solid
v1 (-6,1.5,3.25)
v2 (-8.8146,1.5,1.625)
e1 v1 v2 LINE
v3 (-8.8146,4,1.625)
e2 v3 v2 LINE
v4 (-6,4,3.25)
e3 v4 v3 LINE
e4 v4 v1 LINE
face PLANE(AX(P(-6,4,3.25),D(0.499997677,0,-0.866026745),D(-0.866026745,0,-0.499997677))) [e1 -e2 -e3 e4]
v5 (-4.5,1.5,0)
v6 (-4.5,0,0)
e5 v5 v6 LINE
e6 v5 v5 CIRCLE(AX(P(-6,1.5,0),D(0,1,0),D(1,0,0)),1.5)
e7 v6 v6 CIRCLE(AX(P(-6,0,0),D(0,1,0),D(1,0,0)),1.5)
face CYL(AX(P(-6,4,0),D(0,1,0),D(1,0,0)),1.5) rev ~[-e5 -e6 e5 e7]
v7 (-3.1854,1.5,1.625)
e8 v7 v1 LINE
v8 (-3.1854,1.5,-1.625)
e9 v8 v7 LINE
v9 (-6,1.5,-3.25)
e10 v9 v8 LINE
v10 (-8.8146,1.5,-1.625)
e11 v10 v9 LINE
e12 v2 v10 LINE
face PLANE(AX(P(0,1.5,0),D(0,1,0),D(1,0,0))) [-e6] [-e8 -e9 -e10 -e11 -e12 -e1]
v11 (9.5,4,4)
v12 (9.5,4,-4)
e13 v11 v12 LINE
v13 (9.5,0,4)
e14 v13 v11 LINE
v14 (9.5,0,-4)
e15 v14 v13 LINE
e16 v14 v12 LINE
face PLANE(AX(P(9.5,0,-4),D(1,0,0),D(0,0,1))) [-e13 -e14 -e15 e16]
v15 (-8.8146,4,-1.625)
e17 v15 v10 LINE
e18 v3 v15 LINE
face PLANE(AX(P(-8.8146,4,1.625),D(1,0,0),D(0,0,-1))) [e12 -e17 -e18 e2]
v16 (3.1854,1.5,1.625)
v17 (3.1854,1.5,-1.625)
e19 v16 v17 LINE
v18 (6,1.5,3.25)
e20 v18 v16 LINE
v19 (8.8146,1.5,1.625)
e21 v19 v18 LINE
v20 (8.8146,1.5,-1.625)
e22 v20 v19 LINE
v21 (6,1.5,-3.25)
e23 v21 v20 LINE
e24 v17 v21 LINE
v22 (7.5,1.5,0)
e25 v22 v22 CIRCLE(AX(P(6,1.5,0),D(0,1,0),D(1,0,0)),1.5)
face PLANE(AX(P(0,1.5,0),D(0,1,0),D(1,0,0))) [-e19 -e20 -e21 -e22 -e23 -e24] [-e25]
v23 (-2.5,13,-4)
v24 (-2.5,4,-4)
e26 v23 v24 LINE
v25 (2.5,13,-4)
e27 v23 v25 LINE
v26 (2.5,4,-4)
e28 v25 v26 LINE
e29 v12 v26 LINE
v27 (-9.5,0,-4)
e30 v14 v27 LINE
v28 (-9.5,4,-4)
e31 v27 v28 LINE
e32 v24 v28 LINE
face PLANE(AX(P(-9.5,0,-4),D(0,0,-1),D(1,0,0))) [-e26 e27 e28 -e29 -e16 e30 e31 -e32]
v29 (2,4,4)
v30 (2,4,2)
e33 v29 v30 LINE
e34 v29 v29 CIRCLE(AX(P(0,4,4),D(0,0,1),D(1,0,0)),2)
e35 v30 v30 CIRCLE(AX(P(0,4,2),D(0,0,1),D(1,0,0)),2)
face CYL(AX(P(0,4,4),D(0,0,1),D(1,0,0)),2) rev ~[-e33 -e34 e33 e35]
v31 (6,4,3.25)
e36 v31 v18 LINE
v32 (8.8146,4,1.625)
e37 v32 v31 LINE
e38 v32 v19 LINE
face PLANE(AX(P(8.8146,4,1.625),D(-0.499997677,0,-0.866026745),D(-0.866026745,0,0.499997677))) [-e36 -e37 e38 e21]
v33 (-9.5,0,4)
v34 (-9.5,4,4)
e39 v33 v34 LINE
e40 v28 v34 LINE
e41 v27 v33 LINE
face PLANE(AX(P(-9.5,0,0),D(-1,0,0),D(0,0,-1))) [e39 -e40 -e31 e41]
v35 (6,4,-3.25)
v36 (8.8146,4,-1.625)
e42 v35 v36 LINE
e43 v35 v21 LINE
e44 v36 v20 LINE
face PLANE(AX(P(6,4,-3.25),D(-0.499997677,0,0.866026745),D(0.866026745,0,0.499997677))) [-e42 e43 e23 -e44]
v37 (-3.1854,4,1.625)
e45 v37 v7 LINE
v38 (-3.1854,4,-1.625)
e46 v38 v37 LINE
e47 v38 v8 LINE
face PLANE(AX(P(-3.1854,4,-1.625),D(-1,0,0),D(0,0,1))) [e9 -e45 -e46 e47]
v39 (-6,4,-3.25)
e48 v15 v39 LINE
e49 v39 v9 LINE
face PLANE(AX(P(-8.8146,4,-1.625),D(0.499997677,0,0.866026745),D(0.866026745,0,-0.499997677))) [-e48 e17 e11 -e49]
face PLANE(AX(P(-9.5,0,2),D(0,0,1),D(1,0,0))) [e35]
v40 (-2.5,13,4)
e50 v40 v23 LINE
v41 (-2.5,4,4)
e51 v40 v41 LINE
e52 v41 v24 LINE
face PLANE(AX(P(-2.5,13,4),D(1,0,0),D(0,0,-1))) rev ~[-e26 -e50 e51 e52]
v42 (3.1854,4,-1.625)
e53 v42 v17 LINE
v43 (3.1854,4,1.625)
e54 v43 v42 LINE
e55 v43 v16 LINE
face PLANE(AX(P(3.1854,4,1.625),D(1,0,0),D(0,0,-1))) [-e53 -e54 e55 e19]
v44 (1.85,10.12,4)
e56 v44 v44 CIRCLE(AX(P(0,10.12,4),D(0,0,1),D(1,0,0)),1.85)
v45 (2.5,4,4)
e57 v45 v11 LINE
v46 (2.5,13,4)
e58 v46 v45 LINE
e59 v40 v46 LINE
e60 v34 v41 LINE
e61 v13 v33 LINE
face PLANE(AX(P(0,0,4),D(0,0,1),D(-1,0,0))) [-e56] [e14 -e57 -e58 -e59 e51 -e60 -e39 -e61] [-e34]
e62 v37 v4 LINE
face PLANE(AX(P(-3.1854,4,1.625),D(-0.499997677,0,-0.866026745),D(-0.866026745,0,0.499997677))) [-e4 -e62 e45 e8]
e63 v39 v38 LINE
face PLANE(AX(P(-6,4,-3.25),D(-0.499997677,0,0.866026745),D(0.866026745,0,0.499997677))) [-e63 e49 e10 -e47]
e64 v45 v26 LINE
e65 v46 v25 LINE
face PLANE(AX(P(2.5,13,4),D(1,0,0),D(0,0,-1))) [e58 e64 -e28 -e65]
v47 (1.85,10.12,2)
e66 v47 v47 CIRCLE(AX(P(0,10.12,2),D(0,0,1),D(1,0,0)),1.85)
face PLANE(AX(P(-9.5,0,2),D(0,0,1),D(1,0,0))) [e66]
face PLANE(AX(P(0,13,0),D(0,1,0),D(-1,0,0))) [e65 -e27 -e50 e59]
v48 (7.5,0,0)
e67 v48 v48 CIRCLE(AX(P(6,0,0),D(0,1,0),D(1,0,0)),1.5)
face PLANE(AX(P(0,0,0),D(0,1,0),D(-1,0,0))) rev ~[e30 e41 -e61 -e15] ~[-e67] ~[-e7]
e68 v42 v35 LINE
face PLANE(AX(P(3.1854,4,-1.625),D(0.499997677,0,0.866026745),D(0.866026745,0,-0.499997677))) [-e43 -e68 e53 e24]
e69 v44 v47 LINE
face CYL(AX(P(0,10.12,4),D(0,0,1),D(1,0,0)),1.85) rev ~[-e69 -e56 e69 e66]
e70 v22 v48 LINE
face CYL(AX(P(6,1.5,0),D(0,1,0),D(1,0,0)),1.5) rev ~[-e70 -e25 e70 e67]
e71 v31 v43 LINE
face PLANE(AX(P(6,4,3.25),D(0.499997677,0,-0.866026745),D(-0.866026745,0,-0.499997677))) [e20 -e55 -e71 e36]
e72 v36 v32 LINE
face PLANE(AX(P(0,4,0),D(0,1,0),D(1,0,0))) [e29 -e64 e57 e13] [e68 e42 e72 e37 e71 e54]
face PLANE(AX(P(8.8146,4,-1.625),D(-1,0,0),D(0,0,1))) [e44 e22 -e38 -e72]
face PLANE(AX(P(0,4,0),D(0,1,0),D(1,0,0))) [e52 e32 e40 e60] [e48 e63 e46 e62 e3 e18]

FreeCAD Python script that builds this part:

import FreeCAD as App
import Part
import Sketcher

V = App.Vector
Q = App.Units.Quantity

doc = App.newDocument("Part")
params = doc.addObject("Spreadsheet::Sheet", "Params")
for row, (alias, value) in enumerate([
    ("sketch1_width", "19 mm"),
    ("sketch1_height", "8 mm"),
    ("pad1_length", "13 mm"),
    ("sketch2_diameter", "4 mm"),
    ("sketch2_diameter2", "3.7 mm"),
    ("pocket1_length", "2 mm"),
    ("sketch3_width", "7 mm"),
    ("sketch3_height", "8 mm"),
    ("pocket2_length", "9 mm"),
    ("sketch4_width", "7 mm"),
    ("sketch4_height", "8 mm"),
    ("pocket3_length", "9 mm"),
    ("sketch5_height", "3.25 mm"),
    ("pocket4_length", "2.5 mm"),
    ("sketch6_diameter", "3 mm"),
    ("sketch7_height", "3.25 mm"),
    ("pocket6_length", "2.5 mm"),
    ("sketch8_diameter", "3 mm"),
], start=1):
    params.set(f"A{row}", alias)
    params.set(f"B{row}", "=" + value)
    params.setAlias(f"B{row}", alias)

body = doc.addObject("PartDesign::Body", "Body")

sketch1 = body.newObject("Sketcher::SketchObject", "Sketch")
sketch1.AttachmentSupport = (doc.getObject("XZ_Plane"), [""])
sketch1.MapMode = "FlatFace"
sketch1.addGeometry([
    Part.LineSegment(V(-10, -4, 0), V(-10, 4, 0)),
    Part.LineSegment(V(-10, 4, 0), V(10, 4, 0)),
    Part.LineSegment(V(10, 4, 0), V(10, -4, 0)),
    Part.LineSegment(V(10, -4, 0), V(-10, -4, 0)),
], False)
sketch1.addConstraint([
    Sketcher.Constraint("Coincident", 0, 2, 1, 1),
    Sketcher.Constraint("Coincident", 1, 2, 2, 1),
    Sketcher.Constraint("Coincident", 2, 2, 3, 1),
    Sketcher.Constraint("Coincident", 3, 2, 0, 1),
    Sketcher.Constraint("Vertical", 0),
    Sketcher.Constraint("Horizontal", 1),
    Sketcher.Constraint("Vertical", 2),
    Sketcher.Constraint("Horizontal", 3),
    Sketcher.Constraint("Symmetric", 0, 2, 2, 2, -1, 1),
    Sketcher.Constraint("DistanceX", 1, 1, 1, 2, 19.0),
    Sketcher.Constraint("DistanceY", 0, 1, 0, 2, 8.0),
])
sketch1.setExpression("Constraints[9]", "Params.sketch1_width")
sketch1.setExpression("Constraints[10]", "Params.sketch1_height")
pad1 = body.newObject("PartDesign::Pad", "Pad")
pad1.Profile = sketch1
pad1.setExpression("Length", "Params.pad1_length")
pad1.Reversed = True

sketch2 = body.newObject("Sketcher::SketchObject", "Sketch001")
sketch2.AttachmentSupport = (doc.getObject("XY_Plane"), [""])
sketch2.MapMode = "FlatFace"
sketch2.AttachmentOffset = App.Placement(V(0, 0, 4), App.Rotation())
sketch2.addGeometry([
    Part.Circle(V(0, 10.1, 0), V(0, 0, 1), 1.9),
    Part.Circle(V(0, 4, 0), V(0, 0, 1), 2),
], False)
sketch2.addConstraint([
    Sketcher.Constraint("PointOnObject", 0, 3, -2),
    Sketcher.Constraint("PointOnObject", 1, 3, -2),
    Sketcher.Constraint("Diameter", 1, 4.0),
    Sketcher.Constraint("Diameter", 0, 3.7),
    Sketcher.Constraint("DistanceY", -1, 1, 1, 3, 4.0),
    Sketcher.Constraint("DistanceY", 1, 3, 0, 3, 6.12),
])
sketch2.setExpression("Constraints[2]", "Params.sketch2_diameter")
sketch2.setExpression("Constraints[3]", "Params.sketch2_diameter2")
pocket1 = body.newObject("PartDesign::Pocket", "Pocket")
pocket1.Profile = sketch2
pocket1.setExpression("Length", "Params.pocket1_length")

sketch3 = body.newObject("Sketcher::SketchObject", "Sketch002")
sketch3.AttachmentSupport = (doc.getObject("XZ_Plane"), [""])
sketch3.MapMode = "FlatFace"
sketch3.AttachmentOffset = App.Placement(V(0, 0, -13), App.Rotation())
sketch3.addGeometry([
    Part.LineSegment(V(2, -4, 0), V(2, 4, 0)),
    Part.LineSegment(V(2, 4, 0), V(10, 4, 0)),
    Part.LineSegment(V(10, 4, 0), V(10, -4, 0)),
    Part.LineSegment(V(10, -4, 0), V(2, -4, 0)),
], False)
sketch3.addConstraint([
    Sketcher.Constraint("Coincident", 0, 2, 1, 1),
    Sketcher.Constraint("Coincident", 1, 2, 2, 1),
    Sketcher.Constraint("Coincident", 2, 2, 3, 1),
    Sketcher.Constraint("Coincident", 3, 2, 0, 1),
    Sketcher.Constraint("Vertical", 0),
    Sketcher.Constraint("Horizontal", 1),
    Sketcher.Constraint("Vertical", 2),
    Sketcher.Constraint("Horizontal", 3),
    Sketcher.Constraint("DistanceX", 1, 1, 1, 2, 7.0),
    Sketcher.Constraint("DistanceY", 0, 1, 0, 2, 8.0),
    Sketcher.Constraint("DistanceY", -1, 1, 0, 2, 4.0),
    Sketcher.Constraint("DistanceX", -1, 1, 0, 2, 2.5),
])
sketch3.setExpression("Constraints[8]", "Params.sketch3_width")
sketch3.setExpression("Constraints[9]", "Params.sketch3_height")
pocket2 = body.newObject("PartDesign::Pocket", "Pocket001")
pocket2.Profile = sketch3
pocket2.setExpression("Length", "Params.pocket2_length")
pocket2.Reversed = True

sketch4 = body.newObject("Sketcher::SketchObject", "Sketch003")
sketch4.AttachmentSupport = (doc.getObject("XZ_Plane"), [""])
sketch4.MapMode = "FlatFace"
sketch4.AttachmentOffset = App.Placement(V(0, 0, -13), App.Rotation())
sketch4.addGeometry([
    Part.LineSegment(V(-10, -4, 0), V(-10, 4, 0)),
    Part.LineSegment(V(-10, 4, 0), V(-2, 4, 0)),
    Part.LineSegment(V(-2, 4, 0), V(-2, -4, 0)),
    Part.LineSegment(V(-2, -4, 0), V(-10, -4, 0)),
], False)
sketch4.addConstraint([
    Sketcher.Constraint("Coincident", 0, 2, 1, 1),
    Sketcher.Constraint("Coincident", 1, 2, 2, 1),
    Sketcher.Constraint("Coincident", 2, 2, 3, 1),
    Sketcher.Constraint("Coincident", 3, 2, 0, 1),
    Sketcher.Constraint("Vertical", 0),
    Sketcher.Constraint("Horizontal", 1),
    Sketcher.Constraint("Vertical", 2),
    Sketcher.Constraint("Horizontal", 3),
    Sketcher.Constraint("DistanceX", 1, 1, 1, 2, 7.0),
    Sketcher.Constraint("DistanceY", 0, 1, 0, 2, 8.0),
    Sketcher.Constraint("DistanceY", -1, 1, 0, 2, 4.0),
    Sketcher.Constraint("DistanceX", 0, 2, -1, 1, 9.5),
])
sketch4.setExpression("Constraints[8]", "Params.sketch4_width")
sketch4.setExpression("Constraints[9]", "Params.sketch4_height")
pocket3 = body.newObject("PartDesign::Pocket", "Pocket002")
pocket3.Profile = sketch4
pocket3.setExpression("Length", "Params.pocket3_length")
pocket3.Reversed = True

sketch5 = body.newObject("Sketcher::SketchObject", "Sketch004")
sketch5.AttachmentSupport = (doc.getObject("XZ_Plane"), [""])
sketch5.MapMode = "FlatFace"
sketch5.AttachmentOffset = App.Placement(V(0, 0, -4), App.Rotation())
sketch5.addGeometry([
    Part.LineSegment(V(3.2, 1.6, 0), V(6, 3.2, 0)),
    Part.LineSegment(V(6, 3.2, 0), V(8.8, 1.6, 0)),
    Part.LineSegment(V(8.8, 1.6, 0), V(8.8, -1.6, 0)),
    Part.LineSegment(V(8.8, -1.6, 0), V(6, -3.2, 0)),
    Part.LineSegment(V(6, -3.2, 0), V(3.2, -1.6, 0)),
    Part.LineSegment(V(3.2, -1.6, 0), V(3.2, 1.6, 0)),
], False)
sketch5.addConstraint([
    Sketcher.Constraint("Coincident", 0, 2, 1, 1),
    Sketcher.Constraint("Coincident", 1, 2, 2, 1),
    Sketcher.Constraint("Coincident", 2, 2, 3, 1),
    Sketcher.Constraint("Coincident", 3, 2, 4, 1),
    Sketcher.Constraint("Coincident", 4, 2, 5, 1),
    Sketcher.Constraint("Coincident", 5, 2, 0, 1),
    Sketcher.Constraint("Vertical", 2),
    Sketcher.Constraint("Vertical", 5),
    Sketcher.Constraint("Symmetric", 0, 2, 3, 2, -1),
    Sketcher.Constraint("Parallel", 0, 3),
    Sketcher.Constraint("Parallel", 1, 4),
    Sketcher.Constraint("Horizontal", 2, 2, 4, 2),
    Sketcher.Constraint("Horizontal", 1, 2, 5, 2),
    Sketcher.Constraint("DistanceY", 3, 2, 0, 2, 6.5),
    Sketcher.Constraint("Angle", 0, Q("29.9998 deg")),
    Sketcher.Constraint("DistanceX", -1, 1, 0, 2, 6.0),
    Sketcher.Constraint("DistanceY", 2, 2, 2, 1, 3.25),
])
sketch5.setExpression("Constraints[16]", "Params.sketch5_height")
pocket4 = body.newObject("PartDesign::Pocket", "Pocket003")
pocket4.Profile = sketch5
pocket4.setExpression("Length", "Params.pocket4_length")
pocket4.Reversed = True

sketch6 = body.newObject("Sketcher::SketchObject", "Sketch005")
sketch6.AttachmentSupport = (doc.getObject("XZ_Plane"), [""])
sketch6.MapMode = "FlatFace"
sketch6.AttachmentOffset = App.Placement(V(0, 0, -1.5), App.Rotation())
sketch6.addGeometry(Part.Circle(V(6, 0, 0), V(0, 0, 1), 1.5), False)
sketch6.addConstraint([
    Sketcher.Constraint("PointOnObject", 0, 3, -1),
    Sketcher.Constraint("Diameter", 0, 3.0),
    Sketcher.Constraint("DistanceX", -1, 1, 0, 3, 6.0),
])
sketch6.setExpression("Constraints[1]", "Params.sketch6_diameter")
pocket5 = body.newObject("PartDesign::Pocket", "Pocket004")
pocket5.Profile = sketch6
pocket5.Type = "ThroughAll"
pocket5.Reversed = True

sketch7 = body.newObject("Sketcher::SketchObject", "Sketch006")
sketch7.AttachmentSupport = (doc.getObject("XZ_Plane"), [""])
sketch7.MapMode = "FlatFace"
sketch7.AttachmentOffset = App.Placement(V(0, 0, -4), App.Rotation())
sketch7.addGeometry([
    Part.LineSegment(V(-6, 3.2, 0), V(-3.2, 1.6, 0)),
    Part.LineSegment(V(-3.2, 1.6, 0), V(-3.2, -1.6, 0)),
    Part.LineSegment(V(-3.2, -1.6, 0), V(-6, -3.2, 0)),
    Part.LineSegment(V(-6, -3.2, 0), V(-8.8, -1.6, 0)),
    Part.LineSegment(V(-8.8, -1.6, 0), V(-8.8, 1.6, 0)),
    Part.LineSegment(V(-8.8, 1.6, 0), V(-6, 3.2, 0)),
], False)
sketch7.addConstraint([
    Sketcher.Constraint("Coincident", 0, 2, 1, 1),
    Sketcher.Constraint("Coincident", 1, 2, 2, 1),
    Sketcher.Constraint("Coincident", 2, 2, 3, 1),
    Sketcher.Constraint("Coincident", 3, 2, 4, 1),
    Sketcher.Constraint("Coincident", 4, 2, 5, 1),
    Sketcher.Constraint("Coincident", 5, 2, 0, 1),
    Sketcher.Constraint("Vertical", 1),
    Sketcher.Constraint("Vertical", 4),
    Sketcher.Constraint("Symmetric", 2, 2, 5, 2, -1),
    Sketcher.Constraint("Parallel", 0, 3),
    Sketcher.Constraint("Parallel", 2, 5),
    Sketcher.Constraint("Horizontal", 1, 2, 3, 2),
    Sketcher.Constraint("Horizontal", 0, 2, 4, 2),
    Sketcher.Constraint("DistanceY", 2, 2, 5, 2, 6.5),
    Sketcher.Constraint("Angle", 0, Q("-29.9998 deg")),
    Sketcher.Constraint("DistanceX", 2, 2, -1, 1, 6.0),
    Sketcher.Constraint("DistanceY", 1, 2, 1, 1, 3.25),
])
sketch7.setExpression("Constraints[16]", "Params.sketch7_height")
pocket6 = body.newObject("PartDesign::Pocket", "Pocket005")
pocket6.Profile = sketch7
pocket6.setExpression("Length", "Params.pocket6_length")
pocket6.Reversed = True

sketch8 = body.newObject("Sketcher::SketchObject", "Sketch007")
sketch8.AttachmentSupport = (doc.getObject("XZ_Plane"), [""])
sketch8.MapMode = "FlatFace"
sketch8.AttachmentOffset = App.Placement(V(0, 0, -4), App.Rotation())
sketch8.addGeometry(Part.Circle(V(-6, 0, 0), V(0, 0, 1), 1.5), False)
sketch8.addConstraint([
    Sketcher.Constraint("PointOnObject", 0, 3, -1),
    Sketcher.Constraint("Diameter", 0, 3.0),
    Sketcher.Constraint("DistanceX", 0, 3, -1, 1, 6.0),
])
sketch8.setExpression("Constraints[1]", "Params.sketch8_diameter")
pocket7 = body.newObject("PartDesign::Pocket", "Pocket006")
pocket7.Profile = sketch8
pocket7.Type = "ThroughAll"
pocket7.Reversed = True

doc.recompute()
